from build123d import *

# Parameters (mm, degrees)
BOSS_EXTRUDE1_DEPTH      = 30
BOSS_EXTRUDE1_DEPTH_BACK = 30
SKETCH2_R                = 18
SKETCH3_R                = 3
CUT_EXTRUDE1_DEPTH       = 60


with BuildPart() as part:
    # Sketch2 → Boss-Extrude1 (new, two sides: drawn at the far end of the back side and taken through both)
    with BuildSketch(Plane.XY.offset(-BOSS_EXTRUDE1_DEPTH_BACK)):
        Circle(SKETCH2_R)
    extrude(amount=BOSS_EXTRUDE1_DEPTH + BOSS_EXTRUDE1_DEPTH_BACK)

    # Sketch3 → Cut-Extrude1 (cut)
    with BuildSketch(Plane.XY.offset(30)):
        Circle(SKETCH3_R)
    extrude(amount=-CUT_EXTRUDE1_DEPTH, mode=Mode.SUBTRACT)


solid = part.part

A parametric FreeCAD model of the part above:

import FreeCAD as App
import Part
import Sketcher
from FreeCAD import Vector

doc = App.newDocument("Part")
body = doc.addObject("PartDesign::Body", "Body")

# Sketch on XY plane
sketch1 = body.newObject("Sketcher::SketchObject", "Sketch")
sketch1.AttachmentSupport = (doc.getObject("XY_Plane"), [""])
sketch1.MapMode = "FlatFace"
sketch1.addGeometry(Part.Circle(Vector(0, 0, 0), Vector(0, 0, 1), 18), False)
sketch1.addConstraint([
    Sketcher.Constraint("Coincident", 0, 3, -1, 1),
    Sketcher.Constraint("Diameter", 0, 36.0),
])
pad1 = body.newObject("PartDesign::Pad", "Pad")
pad1.Profile = sketch1
pad1.Type = "TwoLengths"
pad1.Length = 30
pad1.Length2 = 30

# Sketch on XY plane
sketch2 = body.newObject("Sketcher::SketchObject", "Sketch001")
sketch2.AttachmentSupport = (doc.getObject("XY_Plane"), [""])
sketch2.MapMode = "FlatFace"
sketch2.AttachmentOffset = App.Placement(Vector(0, 0, 30), App.Rotation())
sketch2.addGeometry(Part.Circle(Vector(0, 0, 0), Vector(0, 0, 1), 3), False)
sketch2.addConstraint([
    Sketcher.Constraint("Coincident", 0, 3, -1, 1),
    Sketcher.Constraint("Diameter", 0, 6.0),
])
pocket1 = body.newObject("PartDesign::Pocket", "Pocket")
pocket1.Profile = sketch2
pocket1.Length = 60

doc.recompute()
